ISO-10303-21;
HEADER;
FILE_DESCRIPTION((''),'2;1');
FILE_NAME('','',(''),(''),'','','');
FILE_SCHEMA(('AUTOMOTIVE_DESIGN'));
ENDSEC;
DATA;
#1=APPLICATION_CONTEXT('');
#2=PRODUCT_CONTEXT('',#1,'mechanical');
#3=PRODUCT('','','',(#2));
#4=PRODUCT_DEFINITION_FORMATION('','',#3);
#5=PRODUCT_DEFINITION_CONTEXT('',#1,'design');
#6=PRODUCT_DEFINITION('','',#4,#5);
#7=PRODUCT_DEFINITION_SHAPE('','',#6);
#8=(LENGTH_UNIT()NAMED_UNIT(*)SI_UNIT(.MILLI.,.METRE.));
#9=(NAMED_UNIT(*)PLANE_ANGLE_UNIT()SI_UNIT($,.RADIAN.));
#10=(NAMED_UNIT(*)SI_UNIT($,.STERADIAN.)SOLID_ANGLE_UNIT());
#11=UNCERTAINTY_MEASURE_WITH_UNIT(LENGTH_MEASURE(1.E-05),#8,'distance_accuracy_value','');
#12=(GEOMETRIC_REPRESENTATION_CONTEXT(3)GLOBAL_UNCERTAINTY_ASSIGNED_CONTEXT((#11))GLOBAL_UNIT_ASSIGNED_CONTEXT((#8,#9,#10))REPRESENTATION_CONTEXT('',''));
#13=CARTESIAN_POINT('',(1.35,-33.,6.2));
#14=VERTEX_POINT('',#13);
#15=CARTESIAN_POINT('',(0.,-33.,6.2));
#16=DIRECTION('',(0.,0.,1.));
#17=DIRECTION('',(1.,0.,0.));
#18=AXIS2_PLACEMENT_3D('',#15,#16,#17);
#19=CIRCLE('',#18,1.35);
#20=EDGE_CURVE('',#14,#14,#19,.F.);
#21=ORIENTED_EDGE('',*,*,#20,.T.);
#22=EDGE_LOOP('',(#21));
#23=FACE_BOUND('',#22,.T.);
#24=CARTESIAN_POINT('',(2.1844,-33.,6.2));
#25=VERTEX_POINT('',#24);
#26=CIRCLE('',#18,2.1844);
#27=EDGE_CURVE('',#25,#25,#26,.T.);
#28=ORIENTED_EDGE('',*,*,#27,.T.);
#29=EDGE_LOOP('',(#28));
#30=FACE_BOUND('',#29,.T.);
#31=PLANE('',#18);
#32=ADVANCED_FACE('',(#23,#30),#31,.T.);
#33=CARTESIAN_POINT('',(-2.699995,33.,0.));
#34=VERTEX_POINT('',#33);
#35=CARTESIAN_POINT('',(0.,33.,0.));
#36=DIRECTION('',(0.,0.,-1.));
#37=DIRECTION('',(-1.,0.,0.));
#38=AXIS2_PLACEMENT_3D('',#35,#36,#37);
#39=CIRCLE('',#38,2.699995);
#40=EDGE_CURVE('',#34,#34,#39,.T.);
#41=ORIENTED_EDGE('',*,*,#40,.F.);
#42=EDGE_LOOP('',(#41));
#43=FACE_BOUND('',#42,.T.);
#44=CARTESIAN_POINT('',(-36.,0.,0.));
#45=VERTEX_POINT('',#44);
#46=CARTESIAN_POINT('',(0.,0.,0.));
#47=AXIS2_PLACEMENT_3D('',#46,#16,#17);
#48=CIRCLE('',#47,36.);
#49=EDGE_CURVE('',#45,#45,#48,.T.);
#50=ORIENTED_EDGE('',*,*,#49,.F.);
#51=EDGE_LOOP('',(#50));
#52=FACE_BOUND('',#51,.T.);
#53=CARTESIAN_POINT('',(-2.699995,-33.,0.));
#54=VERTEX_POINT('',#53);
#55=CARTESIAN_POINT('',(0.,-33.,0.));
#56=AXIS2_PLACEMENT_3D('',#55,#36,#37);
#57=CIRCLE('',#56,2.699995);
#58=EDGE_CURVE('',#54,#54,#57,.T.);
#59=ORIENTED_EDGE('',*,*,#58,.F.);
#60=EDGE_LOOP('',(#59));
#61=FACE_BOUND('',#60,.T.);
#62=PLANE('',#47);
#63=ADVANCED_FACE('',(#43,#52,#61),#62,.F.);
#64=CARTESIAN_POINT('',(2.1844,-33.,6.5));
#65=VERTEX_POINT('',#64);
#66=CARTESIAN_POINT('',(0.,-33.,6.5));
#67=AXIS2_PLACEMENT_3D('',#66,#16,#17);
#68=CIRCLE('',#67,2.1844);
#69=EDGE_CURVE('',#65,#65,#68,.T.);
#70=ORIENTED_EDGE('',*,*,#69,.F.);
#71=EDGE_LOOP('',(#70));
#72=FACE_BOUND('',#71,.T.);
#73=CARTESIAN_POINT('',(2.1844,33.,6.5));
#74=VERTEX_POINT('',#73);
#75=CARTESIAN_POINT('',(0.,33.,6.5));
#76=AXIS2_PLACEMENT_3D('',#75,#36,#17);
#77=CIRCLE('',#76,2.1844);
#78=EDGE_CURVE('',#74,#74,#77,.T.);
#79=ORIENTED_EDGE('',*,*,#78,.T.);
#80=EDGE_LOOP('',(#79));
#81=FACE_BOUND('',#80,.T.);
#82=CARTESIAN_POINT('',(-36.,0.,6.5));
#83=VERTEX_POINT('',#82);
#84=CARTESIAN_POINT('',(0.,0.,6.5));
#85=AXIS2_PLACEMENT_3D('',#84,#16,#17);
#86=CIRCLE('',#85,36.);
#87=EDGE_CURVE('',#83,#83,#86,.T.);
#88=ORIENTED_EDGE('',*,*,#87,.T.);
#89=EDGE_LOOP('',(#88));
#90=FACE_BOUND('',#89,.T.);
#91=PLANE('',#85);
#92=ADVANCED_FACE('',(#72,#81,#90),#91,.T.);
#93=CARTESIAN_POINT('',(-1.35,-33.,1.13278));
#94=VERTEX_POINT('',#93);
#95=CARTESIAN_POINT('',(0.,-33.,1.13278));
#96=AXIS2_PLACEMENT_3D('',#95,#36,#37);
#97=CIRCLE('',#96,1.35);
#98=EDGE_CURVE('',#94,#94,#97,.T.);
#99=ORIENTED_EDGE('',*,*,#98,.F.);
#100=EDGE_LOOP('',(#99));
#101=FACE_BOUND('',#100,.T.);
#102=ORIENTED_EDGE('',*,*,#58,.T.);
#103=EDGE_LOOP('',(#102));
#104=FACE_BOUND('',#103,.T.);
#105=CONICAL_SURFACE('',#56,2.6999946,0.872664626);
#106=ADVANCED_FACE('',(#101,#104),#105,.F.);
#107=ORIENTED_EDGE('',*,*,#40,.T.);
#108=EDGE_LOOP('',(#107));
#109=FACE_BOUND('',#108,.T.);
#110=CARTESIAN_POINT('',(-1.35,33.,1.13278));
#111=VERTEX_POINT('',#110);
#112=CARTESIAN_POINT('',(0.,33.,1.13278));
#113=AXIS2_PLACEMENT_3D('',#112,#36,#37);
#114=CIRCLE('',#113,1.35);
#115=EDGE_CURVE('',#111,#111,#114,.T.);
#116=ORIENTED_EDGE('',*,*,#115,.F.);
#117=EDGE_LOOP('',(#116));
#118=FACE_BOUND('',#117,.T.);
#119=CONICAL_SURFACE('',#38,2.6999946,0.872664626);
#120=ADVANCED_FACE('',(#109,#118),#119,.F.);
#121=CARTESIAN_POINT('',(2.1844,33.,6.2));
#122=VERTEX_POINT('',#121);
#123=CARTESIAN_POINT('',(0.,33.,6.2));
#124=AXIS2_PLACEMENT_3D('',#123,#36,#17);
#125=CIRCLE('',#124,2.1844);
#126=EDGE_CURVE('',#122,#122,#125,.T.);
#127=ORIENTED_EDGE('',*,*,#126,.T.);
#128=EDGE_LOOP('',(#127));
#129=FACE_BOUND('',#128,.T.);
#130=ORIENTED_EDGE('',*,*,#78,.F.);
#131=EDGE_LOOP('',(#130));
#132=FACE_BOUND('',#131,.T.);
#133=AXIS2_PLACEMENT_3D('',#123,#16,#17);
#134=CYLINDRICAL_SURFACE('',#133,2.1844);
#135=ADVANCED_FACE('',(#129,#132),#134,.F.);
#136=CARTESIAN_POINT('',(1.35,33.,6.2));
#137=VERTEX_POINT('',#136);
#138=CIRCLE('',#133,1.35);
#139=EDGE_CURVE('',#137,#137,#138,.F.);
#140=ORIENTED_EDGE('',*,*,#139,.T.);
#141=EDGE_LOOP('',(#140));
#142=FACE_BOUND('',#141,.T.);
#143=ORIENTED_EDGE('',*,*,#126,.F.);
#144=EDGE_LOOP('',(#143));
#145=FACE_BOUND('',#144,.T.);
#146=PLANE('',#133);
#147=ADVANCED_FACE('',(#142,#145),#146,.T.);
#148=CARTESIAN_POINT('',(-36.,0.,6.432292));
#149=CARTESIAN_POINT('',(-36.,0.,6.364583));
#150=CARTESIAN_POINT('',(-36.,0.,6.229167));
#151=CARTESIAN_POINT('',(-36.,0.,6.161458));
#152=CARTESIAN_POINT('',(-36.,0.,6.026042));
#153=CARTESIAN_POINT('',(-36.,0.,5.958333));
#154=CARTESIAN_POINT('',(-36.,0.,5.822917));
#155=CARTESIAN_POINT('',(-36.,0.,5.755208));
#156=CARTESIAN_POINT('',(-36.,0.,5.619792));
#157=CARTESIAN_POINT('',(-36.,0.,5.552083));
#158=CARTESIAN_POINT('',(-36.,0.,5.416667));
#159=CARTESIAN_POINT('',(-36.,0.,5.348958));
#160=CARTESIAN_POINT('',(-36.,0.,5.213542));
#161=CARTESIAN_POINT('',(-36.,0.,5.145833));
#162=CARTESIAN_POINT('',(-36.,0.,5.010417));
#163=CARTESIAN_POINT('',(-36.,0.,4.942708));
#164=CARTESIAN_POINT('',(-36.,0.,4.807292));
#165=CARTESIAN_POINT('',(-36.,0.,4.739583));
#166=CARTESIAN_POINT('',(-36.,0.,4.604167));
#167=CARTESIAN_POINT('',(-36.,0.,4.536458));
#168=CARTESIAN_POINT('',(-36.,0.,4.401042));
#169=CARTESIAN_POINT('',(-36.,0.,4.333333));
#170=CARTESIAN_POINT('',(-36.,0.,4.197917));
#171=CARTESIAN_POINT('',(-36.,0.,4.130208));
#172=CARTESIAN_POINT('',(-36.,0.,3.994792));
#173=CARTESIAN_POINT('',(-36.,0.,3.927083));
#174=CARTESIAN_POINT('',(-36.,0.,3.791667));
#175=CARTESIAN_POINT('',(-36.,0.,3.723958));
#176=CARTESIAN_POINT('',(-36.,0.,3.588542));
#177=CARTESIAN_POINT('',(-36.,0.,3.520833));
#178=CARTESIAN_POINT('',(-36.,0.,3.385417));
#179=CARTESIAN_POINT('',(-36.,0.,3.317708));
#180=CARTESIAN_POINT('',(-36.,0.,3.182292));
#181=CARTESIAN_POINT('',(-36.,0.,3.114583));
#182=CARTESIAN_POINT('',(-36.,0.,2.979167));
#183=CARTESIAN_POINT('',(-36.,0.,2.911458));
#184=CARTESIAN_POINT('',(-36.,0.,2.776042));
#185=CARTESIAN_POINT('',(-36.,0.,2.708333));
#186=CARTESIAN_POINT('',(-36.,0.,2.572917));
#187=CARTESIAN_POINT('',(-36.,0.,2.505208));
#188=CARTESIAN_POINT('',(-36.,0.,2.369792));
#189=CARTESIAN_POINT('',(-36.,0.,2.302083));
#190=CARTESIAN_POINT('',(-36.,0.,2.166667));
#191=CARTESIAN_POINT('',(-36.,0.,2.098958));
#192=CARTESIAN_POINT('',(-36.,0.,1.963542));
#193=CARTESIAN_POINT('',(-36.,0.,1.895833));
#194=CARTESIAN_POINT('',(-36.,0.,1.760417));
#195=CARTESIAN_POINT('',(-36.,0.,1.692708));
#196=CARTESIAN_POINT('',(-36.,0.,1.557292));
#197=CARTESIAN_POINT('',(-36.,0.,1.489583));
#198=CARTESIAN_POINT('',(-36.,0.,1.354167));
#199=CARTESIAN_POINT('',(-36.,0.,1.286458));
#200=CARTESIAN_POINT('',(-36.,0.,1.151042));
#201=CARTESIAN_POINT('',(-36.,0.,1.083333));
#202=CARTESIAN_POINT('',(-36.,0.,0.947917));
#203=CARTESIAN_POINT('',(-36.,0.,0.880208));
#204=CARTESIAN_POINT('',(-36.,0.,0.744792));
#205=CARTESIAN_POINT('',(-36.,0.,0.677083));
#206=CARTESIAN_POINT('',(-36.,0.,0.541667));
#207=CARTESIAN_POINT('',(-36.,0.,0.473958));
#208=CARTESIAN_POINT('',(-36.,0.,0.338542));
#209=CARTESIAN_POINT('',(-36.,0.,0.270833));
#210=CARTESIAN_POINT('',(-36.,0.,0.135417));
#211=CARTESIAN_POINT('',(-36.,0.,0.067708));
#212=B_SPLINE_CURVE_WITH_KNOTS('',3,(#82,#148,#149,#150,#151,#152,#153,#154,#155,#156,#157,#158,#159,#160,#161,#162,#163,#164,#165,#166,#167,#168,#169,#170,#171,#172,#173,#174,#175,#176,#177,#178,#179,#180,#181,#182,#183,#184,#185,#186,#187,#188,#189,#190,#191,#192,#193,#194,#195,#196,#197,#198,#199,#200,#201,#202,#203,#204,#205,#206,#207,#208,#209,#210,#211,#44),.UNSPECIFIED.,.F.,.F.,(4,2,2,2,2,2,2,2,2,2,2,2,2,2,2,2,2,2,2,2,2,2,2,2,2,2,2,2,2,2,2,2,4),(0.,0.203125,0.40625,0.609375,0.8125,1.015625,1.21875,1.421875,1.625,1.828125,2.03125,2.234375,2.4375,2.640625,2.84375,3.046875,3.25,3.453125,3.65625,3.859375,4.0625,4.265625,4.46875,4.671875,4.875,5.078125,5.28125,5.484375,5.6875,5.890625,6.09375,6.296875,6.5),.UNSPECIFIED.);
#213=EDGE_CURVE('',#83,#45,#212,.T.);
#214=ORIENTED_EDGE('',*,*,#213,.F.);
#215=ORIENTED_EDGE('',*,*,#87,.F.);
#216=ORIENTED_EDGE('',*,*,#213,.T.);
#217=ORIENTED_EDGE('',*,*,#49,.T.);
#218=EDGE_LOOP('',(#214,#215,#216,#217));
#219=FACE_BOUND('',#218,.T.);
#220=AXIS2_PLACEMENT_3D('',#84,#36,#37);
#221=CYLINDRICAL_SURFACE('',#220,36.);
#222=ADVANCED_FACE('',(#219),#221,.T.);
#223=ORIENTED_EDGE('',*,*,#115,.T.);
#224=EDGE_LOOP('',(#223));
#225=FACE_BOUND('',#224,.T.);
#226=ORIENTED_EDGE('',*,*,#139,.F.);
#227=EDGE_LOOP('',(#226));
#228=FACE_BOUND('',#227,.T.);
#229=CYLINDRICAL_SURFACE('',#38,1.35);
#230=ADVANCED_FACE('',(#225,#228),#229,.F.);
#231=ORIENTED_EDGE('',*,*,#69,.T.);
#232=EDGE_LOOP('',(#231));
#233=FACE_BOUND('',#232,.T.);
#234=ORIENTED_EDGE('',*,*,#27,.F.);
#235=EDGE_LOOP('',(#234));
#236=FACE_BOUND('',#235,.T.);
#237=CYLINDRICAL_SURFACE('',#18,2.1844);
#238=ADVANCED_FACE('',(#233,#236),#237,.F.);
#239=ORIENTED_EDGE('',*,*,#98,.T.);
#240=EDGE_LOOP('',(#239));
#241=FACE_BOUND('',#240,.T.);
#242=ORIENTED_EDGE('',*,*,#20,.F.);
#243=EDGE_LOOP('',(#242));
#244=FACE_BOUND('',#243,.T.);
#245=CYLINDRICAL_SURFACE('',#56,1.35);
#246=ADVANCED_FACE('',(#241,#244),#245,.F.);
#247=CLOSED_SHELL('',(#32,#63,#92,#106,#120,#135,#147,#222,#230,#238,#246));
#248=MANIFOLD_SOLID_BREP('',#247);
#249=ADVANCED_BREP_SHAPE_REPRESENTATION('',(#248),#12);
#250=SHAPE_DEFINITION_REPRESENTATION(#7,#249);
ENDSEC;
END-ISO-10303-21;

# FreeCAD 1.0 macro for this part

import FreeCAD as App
import Part
import Sketcher

V = App.Vector
Q = App.Units.Quantity


def add_polygon(sketch, points):
    """Adds a closed chain of lines whose ends are joined by coincident constraints."""
    first, n = sketch.GeometryCount, len(points)
    for a, b in zip(points, points[1:] + points[:1]):
        sketch.addGeometry(Part.LineSegment(App.Vector(*a, 0), App.Vector(*b, 0)), False)
    for i in range(n):
        sketch.addConstraint(Sketcher.Constraint("Coincident", first + i, 2, first + (i + 1) % n, 1))

doc = App.newDocument("Part")
body = doc.addObject("PartDesign::Body", "Body")

# Sketch on XY plane
sketch1 = body.newObject("Sketcher::SketchObject", "Sketch")
sketch1.AttachmentSupport = (doc.getObject("XY_Plane"), [""])
sketch1.MapMode = "FlatFace"
sketch1.addGeometry(Part.Circle(V(0, 0, 0), V(0, 0, 1), 36), False)
sketch1.addConstraint([
    Sketcher.Constraint("Coincident", 0, 3, -1, 1),
    Sketcher.Constraint("Diameter", 0, 72.0),
])
pad1 = body.newObject("PartDesign::Pad", "Pad")
pad1.Profile = sketch1
pad1.Length = 6.5

# Sketch on YZ plane
sketch2 = body.newObject("Sketcher::SketchObject", "Sketch001")
sketch2.AttachmentSupport = (doc.getObject("YZ_Plane"), [""])
sketch2.MapMode = "FlatFace"
add_polygon(sketch2, [(-33, 7.3), (-33, 0), (-30.3, 0), (-31.7, 1.1), (-31.7, 6.5)])  # lines 0-4
sketch2.addGeometry(Part.LineSegment(V(-33, 0, 0), V(-33, 7.3, 0)), True)  # axis
sketch2.addConstraint([
    Sketcher.Constraint("Vertical", 0),
    Sketcher.Constraint("Horizontal", 1),
    Sketcher.Constraint("Vertical", 3),
    Sketcher.Constraint("Vertical", 5),
    Sketcher.Constraint("Coincident", 5, 1, 0, 2),
    Sketcher.Constraint("PointOnObject", 0, 2, -1),
    Sketcher.Constraint("Equal", 0, 5),
    Sketcher.Constraint("Angle", 2, Q("140 deg")),
    Sketcher.Constraint("Angle", 4, Q("149 deg")),
    Sketcher.Constraint("DistanceX", 0, 2, -1, 1, 33.0),
    Sketcher.Constraint("DistanceY", -1, 1, 3, 2, 6.5),
    Sketcher.Constraint("DistanceX", 2, 2, -1, 1, 31.65),
    Sketcher.Constraint("DistanceY", 3, 1, 3, 2, 5.36722),
])
groove = body.newObject("PartDesign::Groove", "Groove")
groove.Profile = sketch2
groove.ReferenceAxis = (sketch2, ["Axis0"])
groove.Angle = 360

# Sketch on XY plane
sketch3 = body.newObject("Sketcher::SketchObject", "Sketch002")
sketch3.AttachmentSupport = (doc.getObject("XY_Plane"), [""])
sketch3.MapMode = "FlatFace"
sketch3.AttachmentOffset = App.Placement(V(0, 0, 6.5), App.Rotation())
sketch3.addGeometry(Part.Circle(V(0, -33, 0), V(0, 0, 1), 2.2), False)
sketch3.addConstraint([
    Sketcher.Constraint("PointOnObject", 0, 3, -2),
    Sketcher.Constraint("DistanceY", 0, 3, -1, 1, 33.0),
    Sketcher.Constraint("Diameter", 0, 4.3688),
])
pocket1 = body.newObject("PartDesign::Pocket", "Pocket")
pocket1.Profile = sketch3
pocket1.Length = 0.3
doc.recompute()

mirrored = body.newObject("PartDesign::Mirrored", "Mirrored")
mirrored.Originals = [groove, pocket1]
mirrored.MirrorPlane = (doc.getObject("XZ_Plane"), [""])
body.Tip = mirrored

doc.recompute()
